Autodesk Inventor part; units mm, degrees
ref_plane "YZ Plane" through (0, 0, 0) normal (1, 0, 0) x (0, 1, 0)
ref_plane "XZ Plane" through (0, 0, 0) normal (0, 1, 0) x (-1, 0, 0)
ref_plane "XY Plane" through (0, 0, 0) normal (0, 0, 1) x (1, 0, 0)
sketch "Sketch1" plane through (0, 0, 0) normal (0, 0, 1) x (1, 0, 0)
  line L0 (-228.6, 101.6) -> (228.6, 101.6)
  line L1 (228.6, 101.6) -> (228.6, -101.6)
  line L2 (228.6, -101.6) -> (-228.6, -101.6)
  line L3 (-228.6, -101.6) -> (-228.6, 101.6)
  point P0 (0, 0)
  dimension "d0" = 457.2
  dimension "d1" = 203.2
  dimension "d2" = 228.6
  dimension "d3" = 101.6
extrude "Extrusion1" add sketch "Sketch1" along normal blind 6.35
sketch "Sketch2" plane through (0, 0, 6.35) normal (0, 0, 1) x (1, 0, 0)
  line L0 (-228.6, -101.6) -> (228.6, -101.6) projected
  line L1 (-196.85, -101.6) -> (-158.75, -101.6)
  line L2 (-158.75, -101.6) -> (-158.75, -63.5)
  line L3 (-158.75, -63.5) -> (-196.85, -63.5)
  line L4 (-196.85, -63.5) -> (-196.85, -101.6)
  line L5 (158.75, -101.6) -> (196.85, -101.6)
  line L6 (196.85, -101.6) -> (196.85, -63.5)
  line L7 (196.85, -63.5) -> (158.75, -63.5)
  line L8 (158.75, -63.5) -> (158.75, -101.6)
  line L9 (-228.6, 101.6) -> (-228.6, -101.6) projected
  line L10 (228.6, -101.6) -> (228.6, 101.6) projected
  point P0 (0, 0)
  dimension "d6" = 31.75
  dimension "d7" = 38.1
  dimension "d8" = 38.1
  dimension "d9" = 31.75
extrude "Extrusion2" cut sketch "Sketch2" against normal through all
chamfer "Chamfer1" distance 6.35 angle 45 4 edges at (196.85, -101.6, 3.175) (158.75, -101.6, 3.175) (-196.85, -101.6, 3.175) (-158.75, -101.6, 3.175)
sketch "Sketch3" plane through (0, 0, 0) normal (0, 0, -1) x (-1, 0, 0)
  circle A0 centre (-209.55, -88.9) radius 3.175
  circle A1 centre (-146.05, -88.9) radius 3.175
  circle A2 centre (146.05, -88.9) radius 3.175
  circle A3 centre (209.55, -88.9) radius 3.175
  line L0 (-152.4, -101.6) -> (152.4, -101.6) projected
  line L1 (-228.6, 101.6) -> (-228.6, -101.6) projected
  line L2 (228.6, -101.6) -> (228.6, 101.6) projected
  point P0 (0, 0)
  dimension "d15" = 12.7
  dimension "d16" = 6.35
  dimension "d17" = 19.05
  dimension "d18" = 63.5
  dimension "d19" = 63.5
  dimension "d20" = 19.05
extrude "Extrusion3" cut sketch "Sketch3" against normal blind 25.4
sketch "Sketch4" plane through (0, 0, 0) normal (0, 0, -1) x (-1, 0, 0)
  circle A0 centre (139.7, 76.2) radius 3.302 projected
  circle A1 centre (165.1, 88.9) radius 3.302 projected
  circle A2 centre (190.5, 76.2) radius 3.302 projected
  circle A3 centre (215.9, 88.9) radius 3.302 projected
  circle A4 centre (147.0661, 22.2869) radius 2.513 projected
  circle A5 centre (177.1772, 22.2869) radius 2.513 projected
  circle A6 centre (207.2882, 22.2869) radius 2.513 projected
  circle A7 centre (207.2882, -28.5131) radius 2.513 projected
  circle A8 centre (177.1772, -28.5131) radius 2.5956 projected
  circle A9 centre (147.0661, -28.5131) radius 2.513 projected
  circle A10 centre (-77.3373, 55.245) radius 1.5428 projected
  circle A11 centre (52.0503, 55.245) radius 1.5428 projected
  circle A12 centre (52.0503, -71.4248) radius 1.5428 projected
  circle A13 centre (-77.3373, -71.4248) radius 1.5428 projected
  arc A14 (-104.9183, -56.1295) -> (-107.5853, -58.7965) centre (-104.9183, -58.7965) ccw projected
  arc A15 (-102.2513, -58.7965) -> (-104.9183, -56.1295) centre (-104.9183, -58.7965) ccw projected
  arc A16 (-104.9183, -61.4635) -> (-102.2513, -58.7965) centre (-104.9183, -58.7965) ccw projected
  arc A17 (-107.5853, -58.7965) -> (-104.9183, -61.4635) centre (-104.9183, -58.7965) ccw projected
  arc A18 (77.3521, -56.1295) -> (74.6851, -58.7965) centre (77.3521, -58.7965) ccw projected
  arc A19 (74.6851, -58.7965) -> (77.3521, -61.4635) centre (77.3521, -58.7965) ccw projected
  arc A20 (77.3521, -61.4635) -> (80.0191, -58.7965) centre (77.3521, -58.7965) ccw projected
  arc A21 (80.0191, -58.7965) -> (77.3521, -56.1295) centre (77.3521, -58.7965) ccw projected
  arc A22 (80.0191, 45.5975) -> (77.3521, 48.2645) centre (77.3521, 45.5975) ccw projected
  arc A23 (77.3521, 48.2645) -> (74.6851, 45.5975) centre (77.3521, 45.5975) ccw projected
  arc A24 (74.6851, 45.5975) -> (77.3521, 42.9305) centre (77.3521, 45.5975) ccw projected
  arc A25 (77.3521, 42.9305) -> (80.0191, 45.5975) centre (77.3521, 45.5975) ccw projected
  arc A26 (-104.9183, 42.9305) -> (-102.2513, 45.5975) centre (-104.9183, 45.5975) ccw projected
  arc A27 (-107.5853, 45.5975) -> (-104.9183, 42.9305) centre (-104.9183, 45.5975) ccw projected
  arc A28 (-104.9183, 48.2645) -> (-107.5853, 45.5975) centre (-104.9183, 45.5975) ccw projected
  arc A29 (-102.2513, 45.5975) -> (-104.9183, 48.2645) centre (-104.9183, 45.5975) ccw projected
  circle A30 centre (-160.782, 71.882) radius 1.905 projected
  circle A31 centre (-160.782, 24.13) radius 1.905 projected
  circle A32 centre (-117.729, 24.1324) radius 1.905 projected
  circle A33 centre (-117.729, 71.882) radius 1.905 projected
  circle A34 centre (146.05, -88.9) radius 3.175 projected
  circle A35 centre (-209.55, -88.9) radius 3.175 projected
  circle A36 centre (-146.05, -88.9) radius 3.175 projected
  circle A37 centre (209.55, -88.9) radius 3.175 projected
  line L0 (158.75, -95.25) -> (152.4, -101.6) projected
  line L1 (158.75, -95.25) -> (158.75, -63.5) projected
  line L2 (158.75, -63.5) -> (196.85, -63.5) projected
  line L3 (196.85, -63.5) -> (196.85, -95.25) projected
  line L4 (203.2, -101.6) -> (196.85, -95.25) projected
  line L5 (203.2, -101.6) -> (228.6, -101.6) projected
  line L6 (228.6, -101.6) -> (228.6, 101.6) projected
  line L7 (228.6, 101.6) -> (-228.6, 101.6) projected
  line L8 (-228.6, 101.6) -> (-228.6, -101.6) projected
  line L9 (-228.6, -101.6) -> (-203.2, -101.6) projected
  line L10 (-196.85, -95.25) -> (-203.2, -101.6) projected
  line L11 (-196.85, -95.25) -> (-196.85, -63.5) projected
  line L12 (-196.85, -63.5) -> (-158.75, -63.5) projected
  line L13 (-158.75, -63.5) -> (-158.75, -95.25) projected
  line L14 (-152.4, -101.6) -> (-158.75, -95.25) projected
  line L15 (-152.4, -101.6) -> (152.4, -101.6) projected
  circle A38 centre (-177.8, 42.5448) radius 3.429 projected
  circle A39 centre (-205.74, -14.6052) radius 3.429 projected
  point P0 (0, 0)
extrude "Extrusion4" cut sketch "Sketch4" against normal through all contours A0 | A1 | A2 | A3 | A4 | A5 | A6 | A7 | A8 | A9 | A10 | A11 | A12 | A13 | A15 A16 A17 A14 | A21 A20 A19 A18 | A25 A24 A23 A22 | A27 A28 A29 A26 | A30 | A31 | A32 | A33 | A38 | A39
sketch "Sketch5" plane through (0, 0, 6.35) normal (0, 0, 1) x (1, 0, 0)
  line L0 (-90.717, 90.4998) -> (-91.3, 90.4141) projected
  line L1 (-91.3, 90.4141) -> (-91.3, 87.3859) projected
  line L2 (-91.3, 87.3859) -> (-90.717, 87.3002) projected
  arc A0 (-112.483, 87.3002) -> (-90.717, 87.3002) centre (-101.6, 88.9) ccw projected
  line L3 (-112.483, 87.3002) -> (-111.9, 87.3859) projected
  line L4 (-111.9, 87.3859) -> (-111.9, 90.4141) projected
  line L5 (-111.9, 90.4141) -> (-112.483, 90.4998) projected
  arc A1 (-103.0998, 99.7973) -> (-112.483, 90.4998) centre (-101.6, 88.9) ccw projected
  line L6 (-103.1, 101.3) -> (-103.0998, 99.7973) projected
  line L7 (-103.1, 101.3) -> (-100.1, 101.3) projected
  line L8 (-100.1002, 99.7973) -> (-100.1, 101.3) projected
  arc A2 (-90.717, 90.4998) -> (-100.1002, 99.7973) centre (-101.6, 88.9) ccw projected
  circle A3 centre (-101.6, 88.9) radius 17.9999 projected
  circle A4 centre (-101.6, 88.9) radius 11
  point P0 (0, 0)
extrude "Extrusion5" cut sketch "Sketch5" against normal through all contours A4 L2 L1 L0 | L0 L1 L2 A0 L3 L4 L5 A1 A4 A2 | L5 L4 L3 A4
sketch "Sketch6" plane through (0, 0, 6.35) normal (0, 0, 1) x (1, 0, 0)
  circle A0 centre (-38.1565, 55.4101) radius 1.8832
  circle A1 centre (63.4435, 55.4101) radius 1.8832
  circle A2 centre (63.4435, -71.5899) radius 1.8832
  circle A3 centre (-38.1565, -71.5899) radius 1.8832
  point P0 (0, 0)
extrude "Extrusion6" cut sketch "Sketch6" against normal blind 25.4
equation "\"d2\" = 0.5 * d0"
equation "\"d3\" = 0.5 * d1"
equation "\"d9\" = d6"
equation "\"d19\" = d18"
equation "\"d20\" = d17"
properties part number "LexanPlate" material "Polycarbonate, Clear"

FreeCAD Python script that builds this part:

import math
import FreeCAD as App
import Part
import Sketcher
from FreeCAD import Vector
Q = App.Units.Quantity


def edges_at(feature, points):
    """Names of the edges that pass closest to the given points."""
    edges = feature.Shape.Edges
    near = lambda p: min(range(len(edges)), key=lambda i: edges[i].distToShape(Part.Vertex(*p))[0])
    return sorted({f"Edge{near(p) + 1}" for p in points})

doc = App.newDocument("Part")
params = doc.addObject("Spreadsheet::Sheet", "Params")
for row, (alias, value) in enumerate([
    ("sketch1_width", "18 in"),
    ("sketch1_height", "8 in"),
    ("pad1_length", "0.25 in"),
    ("sketch2_width", "1.5 in"),
    ("chamfer_size", "0.25 in"),
    ("sketch3_diameter", "0.25 in"),
    ("pocket2_length", "1 in"),
    ("sketch4_diameter", "0.26 in"),
    ("sketch4_diameter2", "0.21 in"),
    ("sketch4_diameter3", "0.15 in"),
    ("sketch4_diameter4", "0.27 in"),
    ("pocket5_length", "1 in"),
], start=1):
    params.set(f"A{row}", alias)
    params.set(f"B{row}", "=" + value)
    params.setAlias(f"B{row}", alias)

body = doc.addObject("PartDesign::Body", "Body")

sketch1 = body.newObject("Sketcher::SketchObject", "Sketch")
sketch1.AttachmentSupport = (doc.getObject("XY_Plane"), [""])
sketch1.MapMode = "FlatFace"
sketch1.addGeometry([
    Part.LineSegment(Vector(228.6, 101.6, 0), Vector(-228.6, 101.6, 0)),
    Part.LineSegment(Vector(-228.6, 101.6, 0), Vector(-228.6, -101.6, 0)),
    Part.LineSegment(Vector(-228.6, -101.6, 0), Vector(228.6, -101.6, 0)),
    Part.LineSegment(Vector(228.6, -101.6, 0), Vector(228.6, 101.6, 0)),
], False)
sketch1.addConstraint([
    Sketcher.Constraint("Coincident", 0, 2, 1, 1),
    Sketcher.Constraint("Coincident", 1, 2, 2, 1),
    Sketcher.Constraint("Coincident", 2, 2, 3, 1),
    Sketcher.Constraint("Coincident", 3, 2, 0, 1),
    Sketcher.Constraint("Horizontal", 0),
    Sketcher.Constraint("Vertical", 1),
    Sketcher.Constraint("Horizontal", 2),
    Sketcher.Constraint("Vertical", 3),
    Sketcher.Constraint("Symmetric", 0, 2, 2, 2, -1, 1),
    Sketcher.Constraint("DistanceX", 0, 2, 0, 1, Q("18 in")),
    Sketcher.Constraint("DistanceY", 1, 2, 1, 1, Q("8 in")),
])
sketch1.setExpression("Constraints[9]", "Params.sketch1_width")
sketch1.setExpression("Constraints[10]", "Params.sketch1_height")
pad1 = body.newObject("PartDesign::Pad", "Pad")
pad1.Profile = sketch1
pad1.setExpression("Length", "Params.pad1_length")

sketch2 = body.newObject("Sketcher::SketchObject", "Sketch001")
sketch2.AttachmentSupport = (doc.getObject("XY_Plane"), [""])
sketch2.MapMode = "FlatFace"
sketch2.AttachmentOffset = App.Placement(Vector(0, 0, 0.25 * 25.4), App.Rotation())
sketch2.addGeometry([
    Part.LineSegment(Vector(-196.85, -63.5, 0), Vector(-196.85, -101.6, 0)),
    Part.LineSegment(Vector(-196.85, -101.6, 0), Vector(-158.75, -101.6, 0)),
    Part.LineSegment(Vector(-158.75, -101.6, 0), Vector(-158.75, -63.5, 0)),
    Part.LineSegment(Vector(-158.75, -63.5, 0), Vector(-196.85, -63.5, 0)),
    Part.LineSegment(Vector(158.75, -63.5, 0), Vector(158.75, -101.6, 0)),
    Part.LineSegment(Vector(158.75, -101.6, 0), Vector(196.85, -101.6, 0)),
    Part.LineSegment(Vector(196.85, -101.6, 0), Vector(196.85, -63.5, 0)),
    Part.LineSegment(Vector(196.85, -63.5, 0), Vector(158.75, -63.5, 0)),
], False)
sketch2.addConstraint([
    Sketcher.Constraint("Coincident", 0, 2, 1, 1),
    Sketcher.Constraint("Coincident", 1, 2, 2, 1),
    Sketcher.Constraint("Coincident", 2, 2, 3, 1),
    Sketcher.Constraint("Coincident", 3, 2, 0, 1),
    Sketcher.Constraint("Coincident", 4, 2, 5, 1),
    Sketcher.Constraint("Coincident", 5, 2, 6, 1),
    Sketcher.Constraint("Coincident", 6, 2, 7, 1),
    Sketcher.Constraint("Coincident", 7, 2, 4, 1),
    Sketcher.Constraint("Vertical", 0),
    Sketcher.Constraint("Horizontal", 1),
    Sketcher.Constraint("Vertical", 2),
    Sketcher.Constraint("Horizontal", 3),
    Sketcher.Constraint("Vertical", 4),
    Sketcher.Constraint("Horizontal", 5),
    Sketcher.Constraint("Vertical", 6),
    Sketcher.Constraint("Horizontal", 7),
    Sketcher.Constraint("Symmetric", 1, 2, 4, 2, -2),
    Sketcher.Constraint("Symmetric", 3, 2, 6, 2, -2),
    Sketcher.Constraint("Equal", 7, 0),
    Sketcher.Constraint("DistanceX", 1, 1, 1, 2, Q("1.5 in")),
    Sketcher.Constraint("DistanceY", 0, 2, -1, 1, Q("4 in")),
    Sketcher.Constraint("DistanceX", 0, 2, 4, 2, Q("14 in")),
])
sketch2.setExpression("Constraints[19]", "Params.sketch2_width")
pocket1 = body.newObject("PartDesign::Pocket", "Pocket")
pocket1.Profile = sketch2
pocket1.Type = "ThroughAll"
doc.recompute()

chamfer = body.newObject("PartDesign::Chamfer", "Chamfer")
chamfer.Base = (pocket1, edges_at(pocket1, [
    (196.85, -101.6, 3.175),
    (158.75, -101.6, 3.175),
    (-196.85, -101.6, 3.175),
    (-158.75, -101.6, 3.175),
]))
chamfer.setExpression("Size", "Params.chamfer_size")

sketch3 = body.newObject("Sketcher::SketchObject", "Sketch002")
sketch3.AttachmentSupport = (doc.getObject("XY_Plane"), [""])
sketch3.MapMode = "FlatFace"
sketch3.addGeometry([
    Part.Circle(Vector(209.55, -88.9, 0), Vector(0, 0, 1), 3.175),
    Part.Circle(Vector(146.05, -88.9, 0), Vector(0, 0, 1), 3.175),
    Part.Circle(Vector(-146.05, -88.9, 0), Vector(0, 0, 1), 3.175),
    Part.Circle(Vector(-209.55, -88.9, 0), Vector(0, 0, 1), 3.175),
], False)
sketch3.addConstraint([
    Sketcher.Constraint("Equal", 0, 1),
    Sketcher.Constraint("Equal", 1, 2),
    Sketcher.Constraint("Equal", 2, 3),
    Sketcher.Constraint("Symmetric", 1, 3, 2, 3, -2),
    Sketcher.Constraint("Symmetric", 0, 3, 3, 3, -2),
    Sketcher.Constraint("Horizontal", 0, 3, 1, 3),
    Sketcher.Constraint("Diameter", 0, Q("0.25 in")),
    Sketcher.Constraint("DistanceX", 1, 3, 0, 3, Q("2.5 in")),
    Sketcher.Constraint("DistanceX", 2, 3, 0, 3, Q("14 in")),
    Sketcher.Constraint("DistanceY", 0, 3, -1, 1, Q("3.5 in")),
])
sketch3.setExpression("Constraints[6]", "Params.sketch3_diameter")
pocket2 = body.newObject("PartDesign::Pocket", "Pocket001")
pocket2.Profile = sketch3
pocket2.setExpression("Length", "Params.pocket2_length")
pocket2.Reversed = True

sketch4 = body.newObject("Sketcher::SketchObject", "Sketch003")
sketch4.AttachmentSupport = (doc.getObject("XY_Plane"), [""])
sketch4.MapMode = "FlatFace"
sketch4.addGeometry([
    Part.Circle(Vector(-139.7, 76.2, 0), Vector(0, 0, 1), 3.302),
    Part.Circle(Vector(-165.1, 88.9, 0), Vector(0, 0, 1), 3.302),
    Part.Circle(Vector(-190.5, 76.2, 0), Vector(0, 0, 1), 3.302),
    Part.Circle(Vector(-215.9, 88.9, 0), Vector(0, 0, 1), 3.302),
    Part.Circle(Vector(-147.0661, 22.2869, 0), Vector(0, 0, 1), 2.513),
    Part.Circle(Vector(-177.1772, 22.2869, 0), Vector(0, 0, 1), 2.513),
    Part.Circle(Vector(-207.2882, 22.2869, 0), Vector(0, 0, 1), 2.513),
    Part.Circle(Vector(-207.2882, -28.5131, 0), Vector(0, 0, 1), 2.513),
    Part.Circle(Vector(-177.1772, -28.5131, 0), Vector(0, 0, 1), 2.5956),
    Part.Circle(Vector(-147.0661, -28.5131, 0), Vector(0, 0, 1), 2.513),
    Part.Circle(Vector(77.3373, 55.245, 0), Vector(0, 0, 1), 1.5428),
    Part.Circle(Vector(-52.0503, 55.245, 0), Vector(0, 0, 1), 1.5428),
    Part.Circle(Vector(-52.0503, -71.4248, 0), Vector(0, 0, 1), 1.5428),
    Part.Circle(Vector(77.3373, -71.4248, 0), Vector(0, 0, 1), 1.5428),
    Part.Circle(Vector(104.9183, -58.7965, 0), Vector(0, 0, 1), 2.667),
    Part.Circle(Vector(-77.3521, -58.7965, 0), Vector(0, 0, 1), 2.667),
    Part.Circle(Vector(-77.3521, 45.5975, 0), Vector(0, 0, 1), 2.667),
    Part.Circle(Vector(104.9183, 45.5975, 0), Vector(0, 0, 1), 2.667),
    Part.Circle(Vector(160.782, 71.882, 0), Vector(0, 0, 1), 1.905),
    Part.Circle(Vector(160.782, 24.13, 0), Vector(0, 0, 1), 1.905),
    Part.Circle(Vector(117.729, 24.1324, 0), Vector(0, 0, 1), 1.905),
    Part.Circle(Vector(117.729, 71.882, 0), Vector(0, 0, 1), 1.905),
    Part.Circle(Vector(177.8, 42.5448, 0), Vector(0, 0, 1), 3.429),
    Part.Circle(Vector(205.74, -14.6052, 0), Vector(0, 0, 1), 3.429),
], False)
sketch4.addConstraint([
    Sketcher.Constraint("Equal", 0, 1),
    Sketcher.Constraint("Equal", 1, 2),
    Sketcher.Constraint("Equal", 2, 3),
    Sketcher.Constraint("Equal", 4, 5),
    Sketcher.Constraint("Equal", 5, 6),
    Sketcher.Constraint("Equal", 6, 7),
    Sketcher.Constraint("Equal", 7, 9),
    Sketcher.Constraint("Equal", 10, 11),
    Sketcher.Constraint("Equal", 11, 12),
    Sketcher.Constraint("Equal", 12, 13),
    Sketcher.Constraint("Equal", 14, 15),
    Sketcher.Constraint("Equal", 15, 16),
    Sketcher.Constraint("Equal", 16, 17),
    Sketcher.Constraint("Equal", 18, 19),
    Sketcher.Constraint("Equal", 19, 20),
    Sketcher.Constraint("Equal", 20, 21),
    Sketcher.Constraint("Equal", 22, 23),
    Sketcher.Constraint("Horizontal", 0, 3, 2, 3),
    Sketcher.Constraint("Horizontal", 1, 3, 3, 3),
    Sketcher.Constraint("Horizontal", 4, 3, 5, 3),
    Sketcher.Constraint("Horizontal", 5, 3, 6, 3),
    Sketcher.Constraint("Horizontal", 7, 3, 8, 3),
    Sketcher.Constraint("Horizontal", 8, 3, 9, 3),
    Sketcher.Constraint("Horizontal", 10, 3, 11, 3),
    Sketcher.Constraint("Horizontal", 12, 3, 13, 3),
    Sketcher.Constraint("Horizontal", 14, 3, 15, 3),
    Sketcher.Constraint("Horizontal", 16, 3, 17, 3),
    Sketcher.Constraint("Horizontal", 18, 3, 21, 3),
    Sketcher.Constraint("Vertical", 6, 3, 7, 3),
    Sketcher.Constraint("Vertical", 5, 3, 8, 3),
    Sketcher.Constraint("Vertical", 4, 3, 9, 3),
    Sketcher.Constraint("Vertical", 11, 3, 12, 3),
    Sketcher.Constraint("Vertical", 10, 3, 13, 3),
    Sketcher.Constraint("Vertical", 15, 3, 16, 3),
    Sketcher.Constraint("Vertical", 14, 3, 17, 3),
    Sketcher.Constraint("Vertical", 18, 3, 19, 3),
    Sketcher.Constraint("Vertical", 20, 3, 21, 3),
    Sketcher.Constraint("Diameter", 0, Q("0.26 in")),
    Sketcher.Constraint("Diameter", 14, Q("0.21 in")),
    Sketcher.Constraint("Diameter", 18, Q("0.15 in")),
    Sketcher.Constraint("Diameter", 22, Q("0.27 in")),
    Sketcher.Constraint("DistanceY", -1, 1, 0, 3, Q("3 in")),
    Sketcher.Constraint("DistanceX", -1, 1, 22, 3, Q("7 in")),
    Sketcher.Constraint("DistanceX", 1, 3, 0, 3, Q("1 in")),
    Sketcher.Constraint("DistanceX", 2, 3, 1, 3, Q("1 in")),
    Sketcher.Constraint("DistanceX", 3, 3, 2, 3, Q("1 in")),
    Sketcher.Constraint("DistanceY", 7, 3, 6, 3, Q("2 in")),
    Sketcher.Constraint("DistanceX", 0, 3, -1, 1, Q("5.5 in")),
    Sketcher.Constraint("DistanceY", -1, 1, 1, 3, Q("3.5 in")),
    Sketcher.Constraint("DistanceX", -1, 1, 23, 3, Q("8.1 in")),
    Sketcher.Constraint("Diameter", 4, Q("5.026 mm")),
    Sketcher.Constraint("Diameter", 8, Q("5.1912 mm")),
    Sketcher.Constraint("Diameter", 10, Q("3.0856 mm")),
    Sketcher.Constraint("DistanceX", 4, 3, -1, 1, Q("5.79 in")),
    Sketcher.Constraint("DistanceX", -1, 1, 18, 3, Q("6.33 in")),
    Sketcher.Constraint("DistanceY", -1, 1, 18, 3, Q("2.83 in")),
    Sketcher.Constraint("DistanceY", -1, 1, 19, 3, Q("0.95 in")),
    Sketcher.Constraint("DistanceY", 14, 3, 17, 3, Q("4.11 in")),
    Sketcher.Constraint("DistanceY", 23, 3, 22, 3, Q("2.25 in")),
    Sketcher.Constraint("DistanceY", -1, 1, 10, 3, Q("2.175 in")),
    Sketcher.Constraint("DistanceY", 12, 3, -1, 1, Q("2.812 in")),
    Sketcher.Constraint("DistanceX", -1, 1, 20, 3, Q("4.635 in")),
    Sketcher.Constraint("DistanceY", -1, 1, 22, 3, Q("1.675 in")),
    Sketcher.Constraint("DistanceX", 11, 3, 10, 3, Q("5.094 in")),
    Sketcher.Constraint("DistanceX", 16, 3, 17, 3, Q("7.176 in")),
    Sketcher.Constraint("DistanceY", -1, 1, 20, 3, Q("0.9501 in")),
    Sketcher.Constraint("DistanceY", -1, 1, 4, 3, Q("22.287 mm")),
    Sketcher.Constraint("DistanceX", 5, 3, -1, 1, Q("177.1772 mm")),
    Sketcher.Constraint("DistanceX", 6, 3, -1, 1, Q("207.2882 mm")),
    Sketcher.Constraint("DistanceX", -1, 1, 10, 3, Q("77.3373 mm")),
    Sketcher.Constraint("DistanceX", -1, 1, 14, 3, Q("104.9183 mm")),
    Sketcher.Constraint("DistanceY", 14, 3, -1, 1, Q("58.7965 mm")),
])
sketch4.setExpression("Constraints[37]", "Params.sketch4_diameter")
sketch4.setExpression("Constraints[38]", "Params.sketch4_diameter2")
sketch4.setExpression("Constraints[39]", "Params.sketch4_diameter3")
sketch4.setExpression("Constraints[40]", "Params.sketch4_diameter4")
pocket3 = body.newObject("PartDesign::Pocket", "Pocket002")
pocket3.Profile = sketch4
pocket3.Type = "ThroughAll"
pocket3.Reversed = True

sketch5 = body.newObject("Sketcher::SketchObject", "Sketch004")
sketch5.AttachmentSupport = (doc.getObject("XY_Plane"), [""])
sketch5.MapMode = "FlatFace"
sketch5.AttachmentOffset = App.Placement(Vector(0, 0, 0.25 * 25.4), App.Rotation())
sketch5.addGeometry([
    Part.ArcOfCircle(Part.Circle(Vector(-101.6, 88.9, 0), Vector(0, 0, 1), 11.000025), math.radians(8.362582), math.radians(82.16359)),
    Part.ArcOfCircle(Part.Circle(Vector(-101.6, 88.9, 0), Vector(0, 0, 1), 11), math.radians(82.16359), math.radians(97.83641)),
    Part.ArcOfCircle(Part.Circle(Vector(-101.6, 88.9, 0), Vector(0, 0, 1), 10.999957), math.radians(97.83641), math.radians(171.637418)),
    Part.ArcOfCircle(Part.Circle(Vector(-101.6, 88.9, 0), Vector(0, 0, 1), 11), math.radians(171.637418), math.radians(368.362582)),
], False)
sketch5.addConstraint([
    Sketcher.Constraint("Tangent", 0, 2, 1, 1),
    Sketcher.Constraint("Tangent", 1, 2, 2, 1),
    Sketcher.Constraint("Tangent", 2, 2, 3, 1),
    Sketcher.Constraint("Tangent", 3, 2, 0, 1),
    Sketcher.Constraint("Equal", 0, 1),
    Sketcher.Constraint("Horizontal", 0, 2, 1, 2),
    Sketcher.Constraint("Horizontal", 2, 2, 3, 2),
    Sketcher.Constraint("DistanceX", 0, 3, -1, 1, Q("4 in")),
    Sketcher.Constraint("DistanceY", -1, 1, 0, 3, Q("3.5 in")),
    Sketcher.Constraint("Radius", 0, Q("11 mm")),
    Sketcher.Constraint("DistanceX", 1, 2, 0, 2, Q("0.1181 in")),
    Sketcher.Constraint("DistanceX", 2, 2, -1, 1, Q("112.483 mm")),
])
pocket4 = body.newObject("PartDesign::Pocket", "Pocket003")
pocket4.Profile = sketch5
pocket4.Type = "ThroughAll"

sketch6 = body.newObject("Sketcher::SketchObject", "Sketch005")
sketch6.AttachmentSupport = (doc.getObject("XY_Plane"), [""])
sketch6.MapMode = "FlatFace"
sketch6.AttachmentOffset = App.Placement(Vector(0, 0, 0.25 * 25.4), App.Rotation())
sketch6.addGeometry([
    Part.Circle(Vector(-38.1565, 55.4101, 0), Vector(0, 0, 1), 1.8832),
    Part.Circle(Vector(63.4435, 55.4101, 0), Vector(0, 0, 1), 1.8832),
    Part.Circle(Vector(63.4435, -71.5899, 0), Vector(0, 0, 1), 1.8832),
    Part.Circle(Vector(-38.1565, -71.5899, 0), Vector(0, 0, 1), 1.8832),
], False)
sketch6.addConstraint([
    Sketcher.Constraint("Equal", 0, 1),
    Sketcher.Constraint("Equal", 1, 2),
    Sketcher.Constraint("Equal", 2, 3),
    Sketcher.Constraint("Horizontal", 0, 3, 1, 3),
    Sketcher.Constraint("Horizontal", 2, 3, 3, 3),
    Sketcher.Constraint("Vertical", 1, 3, 2, 3),
    Sketcher.Constraint("Vertical", 0, 3, 3, 3),
    Sketcher.Constraint("DistanceX", 0, 3, 1, 3, Q("4 in")),
    Sketcher.Constraint("DistanceY", 2, 3, 1, 3, Q("5 in")),
    Sketcher.Constraint("Diameter", 0, Q("3.7664 mm")),
    Sketcher.Constraint("DistanceY", -1, 1, 0, 3, Q("2.1815 in")),
    Sketcher.Constraint("DistanceX", 0, 3, -1, 1, Q("38.1565 mm")),
])
pocket5 = body.newObject("PartDesign::Pocket", "Pocket004")
pocket5.Profile = sketch6
pocket5.setExpression("Length", "Params.pocket5_length")

doc.recompute()
